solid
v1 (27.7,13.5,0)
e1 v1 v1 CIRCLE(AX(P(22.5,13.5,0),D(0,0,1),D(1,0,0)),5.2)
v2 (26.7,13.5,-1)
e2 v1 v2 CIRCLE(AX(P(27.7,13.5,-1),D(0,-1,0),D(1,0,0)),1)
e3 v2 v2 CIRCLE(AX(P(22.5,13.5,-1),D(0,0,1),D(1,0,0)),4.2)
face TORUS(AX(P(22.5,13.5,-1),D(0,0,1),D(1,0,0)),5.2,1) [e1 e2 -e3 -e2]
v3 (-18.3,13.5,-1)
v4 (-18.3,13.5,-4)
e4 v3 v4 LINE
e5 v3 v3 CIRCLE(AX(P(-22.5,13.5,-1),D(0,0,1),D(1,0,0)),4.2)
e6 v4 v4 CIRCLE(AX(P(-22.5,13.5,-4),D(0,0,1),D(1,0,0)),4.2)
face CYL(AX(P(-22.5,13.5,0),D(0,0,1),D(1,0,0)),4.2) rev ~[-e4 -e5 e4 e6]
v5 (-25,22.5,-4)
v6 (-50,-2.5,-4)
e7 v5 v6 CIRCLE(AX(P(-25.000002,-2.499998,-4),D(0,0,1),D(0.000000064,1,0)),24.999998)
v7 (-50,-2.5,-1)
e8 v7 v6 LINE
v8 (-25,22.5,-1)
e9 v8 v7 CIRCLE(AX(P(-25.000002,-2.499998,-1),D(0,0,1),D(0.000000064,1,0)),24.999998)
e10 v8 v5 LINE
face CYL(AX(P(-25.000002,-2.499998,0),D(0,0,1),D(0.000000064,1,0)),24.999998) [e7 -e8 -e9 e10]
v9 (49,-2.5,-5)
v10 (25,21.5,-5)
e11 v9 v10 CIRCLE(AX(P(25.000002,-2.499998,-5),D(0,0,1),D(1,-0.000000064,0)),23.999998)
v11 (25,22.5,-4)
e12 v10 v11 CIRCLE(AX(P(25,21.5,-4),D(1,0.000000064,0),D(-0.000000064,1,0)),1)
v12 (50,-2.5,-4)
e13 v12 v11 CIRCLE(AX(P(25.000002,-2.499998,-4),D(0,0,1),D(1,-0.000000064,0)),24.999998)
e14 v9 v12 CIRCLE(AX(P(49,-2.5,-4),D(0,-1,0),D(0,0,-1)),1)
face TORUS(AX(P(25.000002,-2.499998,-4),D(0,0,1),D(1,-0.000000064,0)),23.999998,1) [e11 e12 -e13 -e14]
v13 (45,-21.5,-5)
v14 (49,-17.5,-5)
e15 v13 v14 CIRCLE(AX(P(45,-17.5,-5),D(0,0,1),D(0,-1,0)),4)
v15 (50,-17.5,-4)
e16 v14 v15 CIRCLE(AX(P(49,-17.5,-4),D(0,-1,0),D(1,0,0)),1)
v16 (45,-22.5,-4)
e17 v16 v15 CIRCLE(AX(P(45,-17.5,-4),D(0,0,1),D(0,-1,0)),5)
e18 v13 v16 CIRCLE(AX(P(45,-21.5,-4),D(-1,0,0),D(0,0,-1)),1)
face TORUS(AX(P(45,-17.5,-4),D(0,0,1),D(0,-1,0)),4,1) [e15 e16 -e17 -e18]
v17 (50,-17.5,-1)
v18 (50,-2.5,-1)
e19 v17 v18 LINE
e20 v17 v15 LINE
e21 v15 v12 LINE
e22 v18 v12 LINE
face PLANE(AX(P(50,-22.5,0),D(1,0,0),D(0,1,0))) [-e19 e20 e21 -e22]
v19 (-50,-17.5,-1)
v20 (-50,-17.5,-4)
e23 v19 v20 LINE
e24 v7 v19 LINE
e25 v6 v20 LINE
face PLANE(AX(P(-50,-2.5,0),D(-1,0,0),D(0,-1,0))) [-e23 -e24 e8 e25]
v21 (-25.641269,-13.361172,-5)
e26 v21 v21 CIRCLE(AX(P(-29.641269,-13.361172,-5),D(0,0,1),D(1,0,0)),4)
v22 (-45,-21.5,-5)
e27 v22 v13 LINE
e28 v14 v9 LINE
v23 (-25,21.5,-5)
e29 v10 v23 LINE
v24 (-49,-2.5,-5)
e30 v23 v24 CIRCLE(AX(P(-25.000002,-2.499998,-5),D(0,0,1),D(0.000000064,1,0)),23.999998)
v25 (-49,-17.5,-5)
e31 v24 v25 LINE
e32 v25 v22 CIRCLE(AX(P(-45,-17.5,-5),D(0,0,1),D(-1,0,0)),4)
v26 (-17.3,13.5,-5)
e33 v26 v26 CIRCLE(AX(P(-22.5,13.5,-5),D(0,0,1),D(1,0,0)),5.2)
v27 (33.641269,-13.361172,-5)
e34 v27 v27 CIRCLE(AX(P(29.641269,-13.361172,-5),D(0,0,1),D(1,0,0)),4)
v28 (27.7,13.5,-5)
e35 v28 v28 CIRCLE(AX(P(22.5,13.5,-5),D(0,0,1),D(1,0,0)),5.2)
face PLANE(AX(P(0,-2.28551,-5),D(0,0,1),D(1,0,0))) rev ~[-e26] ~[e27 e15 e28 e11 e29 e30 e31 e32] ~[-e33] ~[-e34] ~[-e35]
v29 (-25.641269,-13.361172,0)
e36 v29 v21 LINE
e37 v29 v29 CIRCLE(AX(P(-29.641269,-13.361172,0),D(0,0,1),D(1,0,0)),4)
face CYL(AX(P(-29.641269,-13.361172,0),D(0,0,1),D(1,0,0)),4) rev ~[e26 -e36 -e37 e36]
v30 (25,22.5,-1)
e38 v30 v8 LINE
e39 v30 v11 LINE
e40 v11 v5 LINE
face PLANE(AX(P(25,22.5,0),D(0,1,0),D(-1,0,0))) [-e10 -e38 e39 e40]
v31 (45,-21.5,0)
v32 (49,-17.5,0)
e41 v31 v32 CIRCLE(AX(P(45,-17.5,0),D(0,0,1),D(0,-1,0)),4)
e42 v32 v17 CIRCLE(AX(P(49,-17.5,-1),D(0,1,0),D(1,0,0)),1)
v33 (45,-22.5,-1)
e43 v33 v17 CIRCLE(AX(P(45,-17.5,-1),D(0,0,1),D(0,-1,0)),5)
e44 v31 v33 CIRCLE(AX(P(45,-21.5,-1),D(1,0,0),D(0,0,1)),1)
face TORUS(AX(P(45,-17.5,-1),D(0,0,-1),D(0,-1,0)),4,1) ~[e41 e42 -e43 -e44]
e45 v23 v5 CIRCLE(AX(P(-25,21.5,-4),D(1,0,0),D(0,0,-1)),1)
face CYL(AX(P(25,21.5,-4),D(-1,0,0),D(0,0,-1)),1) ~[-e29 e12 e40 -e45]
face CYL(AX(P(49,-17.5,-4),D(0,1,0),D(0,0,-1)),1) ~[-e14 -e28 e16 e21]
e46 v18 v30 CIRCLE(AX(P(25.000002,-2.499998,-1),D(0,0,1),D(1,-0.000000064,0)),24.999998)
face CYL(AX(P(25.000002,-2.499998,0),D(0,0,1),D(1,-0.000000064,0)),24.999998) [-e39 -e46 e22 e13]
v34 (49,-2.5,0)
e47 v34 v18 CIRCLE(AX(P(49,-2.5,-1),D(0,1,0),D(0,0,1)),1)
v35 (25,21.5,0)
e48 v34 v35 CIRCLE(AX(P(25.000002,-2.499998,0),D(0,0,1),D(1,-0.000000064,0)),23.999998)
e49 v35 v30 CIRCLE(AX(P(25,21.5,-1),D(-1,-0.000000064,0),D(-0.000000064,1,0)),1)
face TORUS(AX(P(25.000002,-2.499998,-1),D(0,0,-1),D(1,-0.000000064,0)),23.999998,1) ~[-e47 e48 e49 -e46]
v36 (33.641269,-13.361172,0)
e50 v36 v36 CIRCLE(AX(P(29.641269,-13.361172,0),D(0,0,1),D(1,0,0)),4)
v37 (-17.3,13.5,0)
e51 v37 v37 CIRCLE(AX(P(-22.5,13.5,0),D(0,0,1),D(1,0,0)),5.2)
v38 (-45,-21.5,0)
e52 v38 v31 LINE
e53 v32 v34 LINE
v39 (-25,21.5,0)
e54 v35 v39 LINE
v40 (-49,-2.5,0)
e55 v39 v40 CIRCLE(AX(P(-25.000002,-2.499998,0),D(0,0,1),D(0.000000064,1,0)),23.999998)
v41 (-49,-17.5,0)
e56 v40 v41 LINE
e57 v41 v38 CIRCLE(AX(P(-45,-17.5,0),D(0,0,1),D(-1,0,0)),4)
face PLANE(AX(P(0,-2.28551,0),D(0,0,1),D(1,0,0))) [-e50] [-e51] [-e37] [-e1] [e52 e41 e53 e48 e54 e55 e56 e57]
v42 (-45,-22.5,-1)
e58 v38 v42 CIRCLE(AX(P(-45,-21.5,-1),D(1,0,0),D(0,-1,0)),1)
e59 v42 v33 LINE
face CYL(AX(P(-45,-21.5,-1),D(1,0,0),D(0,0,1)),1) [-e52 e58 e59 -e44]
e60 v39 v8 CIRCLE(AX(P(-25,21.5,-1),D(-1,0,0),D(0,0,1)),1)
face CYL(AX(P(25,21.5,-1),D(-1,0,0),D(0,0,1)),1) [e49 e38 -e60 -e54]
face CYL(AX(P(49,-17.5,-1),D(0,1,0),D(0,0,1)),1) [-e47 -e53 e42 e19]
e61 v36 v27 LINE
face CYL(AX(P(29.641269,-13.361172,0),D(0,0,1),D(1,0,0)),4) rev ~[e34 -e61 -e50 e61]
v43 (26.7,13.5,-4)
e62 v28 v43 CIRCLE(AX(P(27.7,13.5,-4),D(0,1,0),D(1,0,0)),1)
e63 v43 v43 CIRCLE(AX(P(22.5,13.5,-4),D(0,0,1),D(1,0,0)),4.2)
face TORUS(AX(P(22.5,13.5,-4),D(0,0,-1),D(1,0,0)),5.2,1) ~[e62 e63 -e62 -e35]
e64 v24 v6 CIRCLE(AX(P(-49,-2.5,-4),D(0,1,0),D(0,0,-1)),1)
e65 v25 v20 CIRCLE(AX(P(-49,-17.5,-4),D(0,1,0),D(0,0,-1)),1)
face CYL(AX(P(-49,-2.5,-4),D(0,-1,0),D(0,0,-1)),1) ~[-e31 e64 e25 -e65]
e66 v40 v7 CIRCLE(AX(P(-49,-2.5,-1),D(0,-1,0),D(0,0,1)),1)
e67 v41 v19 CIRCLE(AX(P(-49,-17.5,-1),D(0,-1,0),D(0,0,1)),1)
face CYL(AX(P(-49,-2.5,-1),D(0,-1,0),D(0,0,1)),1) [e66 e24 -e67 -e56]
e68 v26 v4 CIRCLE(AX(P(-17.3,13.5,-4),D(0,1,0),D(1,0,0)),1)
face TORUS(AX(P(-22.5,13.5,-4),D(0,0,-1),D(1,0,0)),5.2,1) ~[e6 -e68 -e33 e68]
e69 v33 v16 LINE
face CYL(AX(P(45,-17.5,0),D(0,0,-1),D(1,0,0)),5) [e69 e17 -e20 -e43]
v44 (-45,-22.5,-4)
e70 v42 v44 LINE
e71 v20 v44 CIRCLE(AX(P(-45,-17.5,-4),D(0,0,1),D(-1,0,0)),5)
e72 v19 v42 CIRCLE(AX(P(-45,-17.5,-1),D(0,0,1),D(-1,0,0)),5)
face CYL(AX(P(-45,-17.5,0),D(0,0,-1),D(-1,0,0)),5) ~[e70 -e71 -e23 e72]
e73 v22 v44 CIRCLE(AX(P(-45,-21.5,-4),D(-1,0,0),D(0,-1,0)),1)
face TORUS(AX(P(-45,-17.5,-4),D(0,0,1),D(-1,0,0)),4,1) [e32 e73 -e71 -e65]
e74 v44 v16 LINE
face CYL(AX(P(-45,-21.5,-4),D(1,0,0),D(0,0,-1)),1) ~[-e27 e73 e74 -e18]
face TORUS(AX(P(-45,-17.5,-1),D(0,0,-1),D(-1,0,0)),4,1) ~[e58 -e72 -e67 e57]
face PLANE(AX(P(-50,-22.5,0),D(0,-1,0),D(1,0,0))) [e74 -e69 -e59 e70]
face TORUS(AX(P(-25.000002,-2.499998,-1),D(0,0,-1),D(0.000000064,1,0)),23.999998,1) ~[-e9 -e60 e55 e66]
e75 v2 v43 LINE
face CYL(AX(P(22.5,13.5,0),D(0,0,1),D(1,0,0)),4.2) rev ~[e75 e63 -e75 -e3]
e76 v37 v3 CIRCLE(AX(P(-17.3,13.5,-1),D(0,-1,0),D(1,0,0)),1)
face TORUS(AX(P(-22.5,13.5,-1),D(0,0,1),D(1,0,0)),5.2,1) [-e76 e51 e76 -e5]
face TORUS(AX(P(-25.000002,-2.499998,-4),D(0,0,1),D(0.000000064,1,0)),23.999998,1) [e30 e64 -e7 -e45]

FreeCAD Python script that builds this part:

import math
import FreeCAD as App
import Part
import Sketcher


def edges_at(feature, points):
    """Names of the edges that pass closest to the given points."""
    edges = feature.Shape.Edges
    near = lambda p: min(range(len(edges)), key=lambda i: edges[i].distToShape(Part.Vertex(*p))[0])
    return sorted({f"Edge{near(p) + 1}" for p in points})

doc = App.newDocument("Part")
body = doc.addObject("PartDesign::Body", "Body")

# Sketch on XY plane
sketch1 = body.newObject("Sketcher::SketchObject", "Sketch")
sketch1.AttachmentSupport = (doc.getObject("XY_Plane"), [""])
sketch1.MapMode = "FlatFace"
sketch1.addGeometry(Part.LineSegment(App.Vector(25, 22.5, 0), App.Vector(-25, 22.5, 0)), False)
sketch1.addGeometry(Part.ArcOfCircle(Part.Circle(App.Vector(-25.000002, -2.499998, 0), App.Vector(0, 0, 1), 24.999998), math.radians(89.999996), math.radians(180.000004)), False)
sketch1.addGeometry(Part.LineSegment(App.Vector(-50, -2.5, 0), App.Vector(-50, -22.5, 0)), False)
sketch1.addGeometry(Part.LineSegment(App.Vector(-50, -22.5, 0), App.Vector(50, -22.5, 0)), False)
sketch1.addGeometry(Part.LineSegment(App.Vector(50, -22.5, 0), App.Vector(50, -2.5, 0)), False)
sketch1.addGeometry(Part.ArcOfCircle(Part.Circle(App.Vector(25.000002, -2.499998, 0), App.Vector(0, 0, 1), 24.999998), math.radians(-0.000004), math.radians(90.000004)), False)
sketch1.addGeometry(Part.Circle(App.Vector(-22.5, 13.5, 0), App.Vector(0, 0, 1), 4.2), False)
sketch1.addGeometry(Part.Circle(App.Vector(22.5, 13.5, 0), App.Vector(0, 0, 1), 4.2), False)
sketch1.addConstraint(Sketcher.Constraint("Tangent", 0, 2, 1, 1))
sketch1.addConstraint(Sketcher.Constraint("Tangent", 1, 2, 2, 1))
sketch1.addConstraint(Sketcher.Constraint("Coincident", 2, 2, 3, 1))
sketch1.addConstraint(Sketcher.Constraint("Coincident", 3, 2, 4, 1))
sketch1.addConstraint(Sketcher.Constraint("Tangent", 4, 2, 5, 1))
sketch1.addConstraint(Sketcher.Constraint("Tangent", 5, 2, 0, 1))
sketch1.addConstraint(Sketcher.Constraint("Horizontal", 0))
sketch1.addConstraint(Sketcher.Constraint("Vertical", 2))
sketch1.addConstraint(Sketcher.Constraint("Horizontal", 3))
sketch1.addConstraint(Sketcher.Constraint("Vertical", 4))
sketch1.addConstraint(Sketcher.Constraint("Equal", 1, 5))
sketch1.addConstraint(Sketcher.Constraint("Equal", 6, 7))
sketch1.addConstraint(Sketcher.Constraint("Symmetric", 6, 3, 7, 3, -2))
sketch1.addConstraint(Sketcher.Constraint("Radius", 1, 24.999998))
sketch1.addConstraint(Sketcher.Constraint("Diameter", 6, 8.4))
sketch1.addConstraint(Sketcher.Constraint("DistanceX", 0, 2, 0, 1, 50.0))
sketch1.addConstraint(Sketcher.Constraint("DistanceY", 2, 2, 2, 1, 20.0))
sketch1.addConstraint(Sketcher.Constraint("DistanceX", 1, 3, -1, 1, 25.000002))
sketch1.addConstraint(Sketcher.Constraint("DistanceY", 1, 3, 6, 3, 15.999998))
sketch1.addConstraint(Sketcher.Constraint("DistanceX", 6, 3, 7, 3, 45.0))
sketch1.addConstraint(Sketcher.Constraint("DistanceY", 1, 3, -1, 1, 2.499998))
pad1 = body.newObject("PartDesign::Pad", "Pad")
pad1.Profile = sketch1
pad1.Length = 5
pad1.Reversed = True
doc.recompute()

fillet = body.newObject("PartDesign::Fillet", "Fillet")
fillet.Base = (pad1, edges_at(pad1, [(50, -22.5, -2.5), (-50, -22.5, -2.5)]))
fillet.Radius = 5
doc.recompute()

fillet2 = body.newObject("PartDesign::Fillet", "Fillet001")
fillet2.Base = (fillet, edges_at(fillet, [
    (-50, -10, 0),
    (-48.536, -21.036, 0),
    (-42.678, 15.178, 0),
    (0, -22.5, 0),
    (0, 22.5, 0),
    (48.536, -21.036, 0),
    (42.678, 15.178, 0),
    (50, -10, 0),
    (-26.7, 13.5, 0),
    (18.3, 13.5, 0),
    (-50, -10, -5),
    (-48.536, -21.036, -5),
    (-42.678, 15.178, -5),
    (0, -22.5, -5),
    (0, 22.5, -5),
    (48.536, -21.036, -5),
    (42.678, 15.178, -5),
    (50, -10, -5),
    (-26.7, 13.5, -5),
    (18.3, 13.5, -5),
]))
fillet2.Radius = 1

# Sketch on XY plane
sketch2 = body.newObject("Sketcher::SketchObject", "Sketch001")
sketch2.AttachmentSupport = (doc.getObject("XY_Plane"), [""])
sketch2.MapMode = "FlatFace"
sketch2.addGeometry(Part.Circle(App.Vector(29.641269, -13.361172, 0), App.Vector(0, 0, 1), 4), False)
sketch2.addGeometry(Part.Circle(App.Vector(-29.641269, -13.361172, 0), App.Vector(0, 0, 1), 4), False)
sketch2.addConstraint(Sketcher.Constraint("Equal", 0, 1))
sketch2.addConstraint(Sketcher.Constraint("Symmetric", 0, 3, 1, 3, -2))
sketch2.addConstraint(Sketcher.Constraint("Diameter", 0, 8.0))
sketch2.addConstraint(Sketcher.Constraint("DistanceX", -1, 1, 0, 3, 29.641269))
sketch2.addConstraint(Sketcher.Constraint("DistanceY", 0, 3, -1, 1, 13.361172))
pocket1 = body.newObject("PartDesign::Pocket", "Pocket")
pocket1.Profile = sketch2
pocket1.Type = "ThroughAll"

doc.recompute()
